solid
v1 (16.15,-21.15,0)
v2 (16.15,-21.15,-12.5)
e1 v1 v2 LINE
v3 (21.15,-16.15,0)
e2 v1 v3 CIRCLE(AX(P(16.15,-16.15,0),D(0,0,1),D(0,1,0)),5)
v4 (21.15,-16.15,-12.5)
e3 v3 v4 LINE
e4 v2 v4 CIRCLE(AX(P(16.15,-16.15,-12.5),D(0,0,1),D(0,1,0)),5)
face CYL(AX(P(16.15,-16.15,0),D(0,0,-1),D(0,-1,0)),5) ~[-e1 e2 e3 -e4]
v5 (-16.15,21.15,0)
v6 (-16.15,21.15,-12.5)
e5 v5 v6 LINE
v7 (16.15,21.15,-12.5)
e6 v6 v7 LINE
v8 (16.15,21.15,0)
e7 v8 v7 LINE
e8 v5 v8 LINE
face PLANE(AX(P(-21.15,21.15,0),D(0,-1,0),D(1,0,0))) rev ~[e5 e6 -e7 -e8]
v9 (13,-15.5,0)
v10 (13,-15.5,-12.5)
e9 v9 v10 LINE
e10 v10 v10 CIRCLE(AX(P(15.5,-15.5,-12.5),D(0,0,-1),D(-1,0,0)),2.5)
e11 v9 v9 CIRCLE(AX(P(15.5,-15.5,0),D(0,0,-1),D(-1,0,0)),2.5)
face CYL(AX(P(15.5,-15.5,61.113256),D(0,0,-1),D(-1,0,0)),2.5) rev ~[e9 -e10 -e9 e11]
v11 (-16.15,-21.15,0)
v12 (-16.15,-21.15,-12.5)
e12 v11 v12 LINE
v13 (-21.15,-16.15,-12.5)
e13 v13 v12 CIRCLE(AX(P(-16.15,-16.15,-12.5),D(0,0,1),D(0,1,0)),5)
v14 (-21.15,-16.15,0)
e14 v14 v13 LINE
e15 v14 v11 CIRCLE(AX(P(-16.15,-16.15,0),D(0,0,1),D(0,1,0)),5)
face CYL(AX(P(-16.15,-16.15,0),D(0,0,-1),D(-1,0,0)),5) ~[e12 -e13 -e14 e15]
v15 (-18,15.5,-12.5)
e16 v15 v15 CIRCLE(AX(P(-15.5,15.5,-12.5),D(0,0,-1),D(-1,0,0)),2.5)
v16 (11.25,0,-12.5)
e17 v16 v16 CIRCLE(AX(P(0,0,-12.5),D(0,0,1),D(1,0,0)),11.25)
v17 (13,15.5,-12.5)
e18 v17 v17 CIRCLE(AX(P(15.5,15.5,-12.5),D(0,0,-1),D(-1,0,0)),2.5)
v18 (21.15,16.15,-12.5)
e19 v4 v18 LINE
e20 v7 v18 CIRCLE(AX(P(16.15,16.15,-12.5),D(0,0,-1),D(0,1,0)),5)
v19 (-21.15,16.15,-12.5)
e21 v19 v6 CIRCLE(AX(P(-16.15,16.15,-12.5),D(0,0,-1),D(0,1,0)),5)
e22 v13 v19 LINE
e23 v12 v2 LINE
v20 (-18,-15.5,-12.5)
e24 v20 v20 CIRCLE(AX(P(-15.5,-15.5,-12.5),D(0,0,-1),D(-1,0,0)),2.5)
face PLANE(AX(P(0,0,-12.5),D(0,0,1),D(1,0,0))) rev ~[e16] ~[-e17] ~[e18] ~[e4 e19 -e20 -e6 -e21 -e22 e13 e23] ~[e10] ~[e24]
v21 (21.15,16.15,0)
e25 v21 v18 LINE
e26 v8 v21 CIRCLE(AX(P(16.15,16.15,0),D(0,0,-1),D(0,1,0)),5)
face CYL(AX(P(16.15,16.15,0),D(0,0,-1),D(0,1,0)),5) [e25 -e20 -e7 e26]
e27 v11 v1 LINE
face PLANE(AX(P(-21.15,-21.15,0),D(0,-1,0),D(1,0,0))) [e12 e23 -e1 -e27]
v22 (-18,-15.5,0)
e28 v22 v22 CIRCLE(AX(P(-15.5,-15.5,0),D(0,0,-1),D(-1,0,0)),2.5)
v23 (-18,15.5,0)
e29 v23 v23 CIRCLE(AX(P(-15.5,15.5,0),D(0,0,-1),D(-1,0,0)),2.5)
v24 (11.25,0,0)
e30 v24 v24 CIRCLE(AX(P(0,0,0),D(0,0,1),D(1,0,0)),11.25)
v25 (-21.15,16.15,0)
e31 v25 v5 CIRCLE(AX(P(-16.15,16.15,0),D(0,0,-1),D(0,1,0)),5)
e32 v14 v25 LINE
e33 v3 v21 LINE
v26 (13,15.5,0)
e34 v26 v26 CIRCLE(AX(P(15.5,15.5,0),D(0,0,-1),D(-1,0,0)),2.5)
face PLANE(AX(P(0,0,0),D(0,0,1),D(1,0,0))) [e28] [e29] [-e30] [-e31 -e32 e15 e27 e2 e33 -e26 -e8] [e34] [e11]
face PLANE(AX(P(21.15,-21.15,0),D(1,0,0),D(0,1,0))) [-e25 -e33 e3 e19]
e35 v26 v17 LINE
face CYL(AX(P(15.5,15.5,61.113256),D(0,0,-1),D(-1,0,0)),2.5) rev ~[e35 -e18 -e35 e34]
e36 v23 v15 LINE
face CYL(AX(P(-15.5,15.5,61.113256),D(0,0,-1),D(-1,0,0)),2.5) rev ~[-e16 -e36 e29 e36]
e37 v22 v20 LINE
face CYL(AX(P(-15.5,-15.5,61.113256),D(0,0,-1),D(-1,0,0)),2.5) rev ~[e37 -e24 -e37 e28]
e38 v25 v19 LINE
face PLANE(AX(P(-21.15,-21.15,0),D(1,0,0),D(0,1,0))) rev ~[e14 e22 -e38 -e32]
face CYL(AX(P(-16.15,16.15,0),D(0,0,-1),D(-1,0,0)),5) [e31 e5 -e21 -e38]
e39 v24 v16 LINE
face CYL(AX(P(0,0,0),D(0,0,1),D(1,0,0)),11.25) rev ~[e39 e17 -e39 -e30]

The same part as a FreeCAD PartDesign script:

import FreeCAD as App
import Part
import Sketcher


def edges_at(feature, points):
    """Names of the edges that pass closest to the given points."""
    edges = feature.Shape.Edges
    near = lambda p: min(range(len(edges)), key=lambda i: edges[i].distToShape(Part.Vertex(*p))[0])
    return sorted({f"Edge{near(p) + 1}" for p in points})

doc = App.newDocument("Part")
body = doc.addObject("PartDesign::Body", "Body")

# Sketch on XY plane
sketch1 = body.newObject("Sketcher::SketchObject", "Sketch")
sketch1.AttachmentSupport = (doc.getObject("XY_Plane"), [""])
sketch1.MapMode = "FlatFace"
sketch1.addGeometry([
    Part.LineSegment(App.Vector(-21, 21, 0), App.Vector(-21, -21, 0)),  # 0
    Part.LineSegment(App.Vector(-21, -21, 0), App.Vector(21, -21, 0)),  # 1
    Part.LineSegment(App.Vector(21, -21, 0), App.Vector(21, 21, 0)),  # 2
    Part.LineSegment(App.Vector(21, 21, 0), App.Vector(-21, 21, 0)),  # 3
    Part.Circle(App.Vector(0, 0, 0), App.Vector(0, 0, 1), 11),  # 4
], False)
sketch1.addConstraint([
    Sketcher.Constraint("Coincident", 0, 2, 1, 1),
    Sketcher.Constraint("Coincident", 1, 2, 2, 1),
    Sketcher.Constraint("Coincident", 2, 2, 3, 1),
    Sketcher.Constraint("Coincident", 3, 2, 0, 1),
    Sketcher.Constraint("Vertical", 0),
    Sketcher.Constraint("Horizontal", 1),
    Sketcher.Constraint("Vertical", 2),
    Sketcher.Constraint("Horizontal", 3),
    Sketcher.Constraint("Coincident", 4, 3, -1, 1),
    Sketcher.Constraint("Symmetric", 0, 2, 2, 2, -1, 1),
    Sketcher.Constraint("Equal", 3, 0),
    Sketcher.Constraint("Diameter", 4, 22.5),
    Sketcher.Constraint("DistanceX", 1, 1, 1, 2, 42.3),
])
pad1 = body.newObject("PartDesign::Pad", "Pad")
pad1.Profile = sketch1
pad1.Length = 12.5
pad1.Reversed = True
doc.recompute()

fillet = body.newObject("PartDesign::Fillet", "Fillet")
fillet.Base = (pad1, edges_at(pad1, [(21.15, -21.15, -6.25), (-21.15, 21.15, -6.25), (21.15, 21.15, -6.25)]))
fillet.Radius = 5
doc.recompute()

fillet2 = body.newObject("PartDesign::Fillet", "Fillet001")
fillet2.Base = (fillet, edges_at(fillet, [(-21.15, -21.15, -6.25)]))
fillet2.Radius = 5

# Sketch on XY plane
sketch2 = body.newObject("Sketcher::SketchObject", "Sketch001")
sketch2.AttachmentSupport = (doc.getObject("XY_Plane"), [""])
sketch2.MapMode = "FlatFace"
sketch2.addGeometry([
    Part.Circle(App.Vector(-15.5, -15.5, 0), App.Vector(0, 0, 1), 2.5),
    Part.Circle(App.Vector(-15.5, 15.5, 0), App.Vector(0, 0, 1), 2.5),
    Part.Circle(App.Vector(15.5, 15.5, 0), App.Vector(0, 0, 1), 2.5),
    Part.Circle(App.Vector(15.5, -15.5, 0), App.Vector(0, 0, 1), 2.5),
], False)
sketch2.addConstraint([
    Sketcher.Constraint("Equal", 0, 1),
    Sketcher.Constraint("Equal", 1, 2),
    Sketcher.Constraint("Equal", 2, 3),
    Sketcher.Constraint("Symmetric", 0, 3, 2, 3, -1, 1),
    Sketcher.Constraint("Symmetric", 1, 3, 3, 3, -1, 1),
    Sketcher.Constraint("Symmetric", 1, 3, 2, 3, -2),
    Sketcher.Constraint("Diameter", 0, 5.0),
    Sketcher.Constraint("DistanceY", 0, 3, 1, 3, 31.0),
    Sketcher.Constraint("DistanceX", 1, 3, 2, 3, 31.0),
])
doc.recompute()
hole = body.newObject("PartDesign::Hole", "Hole")
hole.Profile = sketch2
hole.ThreadType = "None"
hole.Diameter = 5
hole.DepthType = "ThroughAll"

doc.recompute()
